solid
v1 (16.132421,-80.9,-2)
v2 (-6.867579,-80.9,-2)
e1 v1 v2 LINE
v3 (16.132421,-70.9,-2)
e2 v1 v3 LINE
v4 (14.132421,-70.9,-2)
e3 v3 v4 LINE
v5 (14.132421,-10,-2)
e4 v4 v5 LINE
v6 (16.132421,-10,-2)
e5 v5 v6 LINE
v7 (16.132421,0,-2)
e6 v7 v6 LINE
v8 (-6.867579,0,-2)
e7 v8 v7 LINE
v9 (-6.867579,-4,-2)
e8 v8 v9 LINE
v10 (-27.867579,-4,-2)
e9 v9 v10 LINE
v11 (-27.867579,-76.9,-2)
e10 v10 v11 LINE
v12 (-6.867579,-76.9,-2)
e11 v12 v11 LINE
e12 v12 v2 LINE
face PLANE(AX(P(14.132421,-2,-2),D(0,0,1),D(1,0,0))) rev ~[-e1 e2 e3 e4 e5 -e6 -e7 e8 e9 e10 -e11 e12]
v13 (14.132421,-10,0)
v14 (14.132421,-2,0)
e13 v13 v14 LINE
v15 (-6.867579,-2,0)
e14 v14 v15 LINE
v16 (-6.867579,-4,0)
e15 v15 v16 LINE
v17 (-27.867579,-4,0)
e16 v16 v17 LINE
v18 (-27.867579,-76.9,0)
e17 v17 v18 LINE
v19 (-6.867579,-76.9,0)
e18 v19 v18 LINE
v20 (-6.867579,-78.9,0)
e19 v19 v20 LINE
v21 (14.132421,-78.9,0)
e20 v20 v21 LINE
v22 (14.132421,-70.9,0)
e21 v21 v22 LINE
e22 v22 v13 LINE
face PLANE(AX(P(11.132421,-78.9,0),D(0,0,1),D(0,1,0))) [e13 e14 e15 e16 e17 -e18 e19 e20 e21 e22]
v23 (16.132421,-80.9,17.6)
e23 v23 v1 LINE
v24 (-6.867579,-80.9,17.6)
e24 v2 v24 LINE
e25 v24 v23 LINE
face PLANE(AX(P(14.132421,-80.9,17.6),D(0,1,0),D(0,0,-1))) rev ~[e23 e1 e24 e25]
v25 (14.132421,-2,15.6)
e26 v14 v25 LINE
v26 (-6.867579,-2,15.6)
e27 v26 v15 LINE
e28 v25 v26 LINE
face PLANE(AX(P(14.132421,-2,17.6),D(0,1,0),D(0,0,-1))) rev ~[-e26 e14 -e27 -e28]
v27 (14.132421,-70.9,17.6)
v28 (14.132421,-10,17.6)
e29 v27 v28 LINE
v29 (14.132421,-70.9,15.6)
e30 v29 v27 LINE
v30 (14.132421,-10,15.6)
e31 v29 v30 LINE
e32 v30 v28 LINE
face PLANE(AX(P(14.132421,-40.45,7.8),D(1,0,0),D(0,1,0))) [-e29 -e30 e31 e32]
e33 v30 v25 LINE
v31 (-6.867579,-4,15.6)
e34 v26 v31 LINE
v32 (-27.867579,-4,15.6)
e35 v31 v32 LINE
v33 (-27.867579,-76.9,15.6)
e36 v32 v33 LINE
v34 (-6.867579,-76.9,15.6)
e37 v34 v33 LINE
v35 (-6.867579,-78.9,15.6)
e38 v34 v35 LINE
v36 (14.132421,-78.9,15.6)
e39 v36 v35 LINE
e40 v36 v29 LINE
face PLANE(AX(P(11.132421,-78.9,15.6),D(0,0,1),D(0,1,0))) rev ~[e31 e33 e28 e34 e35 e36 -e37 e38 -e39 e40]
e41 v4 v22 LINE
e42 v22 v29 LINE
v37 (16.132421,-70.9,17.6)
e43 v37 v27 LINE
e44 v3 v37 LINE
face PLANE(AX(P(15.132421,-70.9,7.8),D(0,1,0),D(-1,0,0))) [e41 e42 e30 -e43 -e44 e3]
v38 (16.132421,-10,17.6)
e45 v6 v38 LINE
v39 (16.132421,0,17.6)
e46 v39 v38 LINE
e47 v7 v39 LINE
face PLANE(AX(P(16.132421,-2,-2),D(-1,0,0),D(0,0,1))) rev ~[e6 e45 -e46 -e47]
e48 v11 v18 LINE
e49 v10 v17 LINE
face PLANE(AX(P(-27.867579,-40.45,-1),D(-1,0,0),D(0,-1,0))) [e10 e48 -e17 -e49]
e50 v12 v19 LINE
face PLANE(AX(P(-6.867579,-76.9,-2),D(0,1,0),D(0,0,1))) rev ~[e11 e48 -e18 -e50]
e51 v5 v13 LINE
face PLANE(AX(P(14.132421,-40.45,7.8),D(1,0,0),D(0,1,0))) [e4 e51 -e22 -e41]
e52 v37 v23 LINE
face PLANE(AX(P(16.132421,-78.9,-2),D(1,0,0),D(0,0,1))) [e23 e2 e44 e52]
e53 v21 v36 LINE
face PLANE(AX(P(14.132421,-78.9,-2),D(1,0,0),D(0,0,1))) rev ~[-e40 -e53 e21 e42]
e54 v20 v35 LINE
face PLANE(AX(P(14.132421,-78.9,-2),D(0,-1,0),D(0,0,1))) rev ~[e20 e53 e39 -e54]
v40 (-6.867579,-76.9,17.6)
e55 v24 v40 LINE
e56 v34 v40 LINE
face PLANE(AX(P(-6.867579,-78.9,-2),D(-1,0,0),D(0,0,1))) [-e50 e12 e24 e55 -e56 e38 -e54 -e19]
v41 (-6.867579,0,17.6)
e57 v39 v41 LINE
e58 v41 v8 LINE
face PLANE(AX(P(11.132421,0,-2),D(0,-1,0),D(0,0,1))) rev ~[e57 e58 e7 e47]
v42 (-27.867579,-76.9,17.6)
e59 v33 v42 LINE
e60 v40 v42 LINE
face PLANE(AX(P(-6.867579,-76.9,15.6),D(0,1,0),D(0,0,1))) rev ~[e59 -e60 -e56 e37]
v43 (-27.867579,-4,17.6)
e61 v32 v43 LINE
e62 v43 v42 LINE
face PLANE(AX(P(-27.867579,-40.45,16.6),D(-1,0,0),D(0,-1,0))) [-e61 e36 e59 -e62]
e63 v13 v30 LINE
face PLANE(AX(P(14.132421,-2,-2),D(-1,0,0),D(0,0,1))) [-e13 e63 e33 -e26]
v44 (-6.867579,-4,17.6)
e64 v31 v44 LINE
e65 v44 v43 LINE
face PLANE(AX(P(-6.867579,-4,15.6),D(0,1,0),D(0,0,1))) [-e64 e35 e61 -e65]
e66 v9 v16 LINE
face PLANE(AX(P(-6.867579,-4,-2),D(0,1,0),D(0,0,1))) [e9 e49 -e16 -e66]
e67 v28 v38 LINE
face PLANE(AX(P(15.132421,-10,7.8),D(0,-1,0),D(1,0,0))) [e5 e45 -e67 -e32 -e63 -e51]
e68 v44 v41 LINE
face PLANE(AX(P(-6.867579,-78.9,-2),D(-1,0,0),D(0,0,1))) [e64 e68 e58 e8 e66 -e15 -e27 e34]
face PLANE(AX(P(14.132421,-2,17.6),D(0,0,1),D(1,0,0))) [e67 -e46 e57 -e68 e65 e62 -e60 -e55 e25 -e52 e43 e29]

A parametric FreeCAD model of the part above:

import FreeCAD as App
import Part
import Sketcher
from FreeCAD import Vector


def add_polygon(sketch, points):
    """Adds a closed chain of lines whose ends are joined by coincident constraints."""
    first, n = sketch.GeometryCount, len(points)
    for a, b in zip(points, points[1:] + points[:1]):
        sketch.addGeometry(Part.LineSegment(App.Vector(*a, 0), App.Vector(*b, 0)), False)
    for i in range(n):
        sketch.addConstraint(Sketcher.Constraint("Coincident", first + i, 2, first + (i + 1) % n, 1))

doc = App.newDocument("Part")
body = doc.addObject("PartDesign::Body", "Body")

sketch1 = doc.addObject("Sketcher::SketchObject", "Sketch")
body.addObject(sketch1)
sketch1.AttachmentSupport = (doc.XZ_Plane, [""])
sketch1.MapMode = "FlatFace"
add_polygon(sketch1, [(-7, -2), (11, -2), (11, 18), (-7, 18)])
sketch1.addConstraint([
    Sketcher.Constraint("Horizontal", 0),
    Sketcher.Constraint("Vertical", 1),
    Sketcher.Constraint("Horizontal", 2),
    Sketcher.Constraint("Vertical", 3),
    Sketcher.Constraint("DistanceX", 0, 1, 0, 2, 18.0),
    Sketcher.Constraint("DistanceY", 1, 1, 1, 2, 19.6),
    Sketcher.Constraint("DistanceY", 0, 2, -1, 1, 2.0),
    Sketcher.Constraint("DistanceX", -1, 1, 0, 2, 11.132421),
])
pad1 = doc.addObject("PartDesign::Pad", "Pad")
body.addObject(pad1)
pad1.Profile = sketch1
pad1.Length = 2

sketch2 = doc.addObject("Sketcher::SketchObject", "Sketch001")
body.addObject(sketch2)
sketch2.AttachmentSupport = (doc.XZ_Plane, [""])
sketch2.MapMode = "FlatFace"
sketch2.AttachmentOffset = App.Placement(Vector(0, 0, 2), App.Rotation())
add_polygon(sketch2, [(-6.9, 17.6), (-6.9, 15.6), (11.1, 15.6), (11.1, 17.6)])
add_polygon(sketch2, [(-6.9, 0), (-6.9, -2), (11.1, -2), (11.1, 0)])
sketch2.addConstraint([
    Sketcher.Constraint("Vertical", 0),
    Sketcher.Constraint("Horizontal", 1),
    Sketcher.Constraint("Vertical", 2),
    Sketcher.Constraint("Horizontal", 3),
    Sketcher.Constraint("Vertical", 4),
    Sketcher.Constraint("Horizontal", 5),
    Sketcher.Constraint("Vertical", 6),
    Sketcher.Constraint("Horizontal", 7),
    Sketcher.Constraint("PointOnObject", 6, 2, -1),
    Sketcher.Constraint("Vertical", 3, 2, 4, 2),
    Sketcher.Constraint("Vertical", 2, 2, 5, 2),
    Sketcher.Constraint("Equal", 2, 4),
    Sketcher.Constraint("DistanceX", 1, 1, 1, 2, 18.0),
    Sketcher.Constraint("DistanceY", 0, 2, 0, 1, 2.0),
    Sketcher.Constraint("DistanceY", -1, 1, 0, 2, 15.6),
    Sketcher.Constraint("DistanceX", 0, 2, -1, 1, 6.867579),
])
pad2 = doc.addObject("PartDesign::Pad", "Pad001")
body.addObject(pad2)
pad2.Profile = sketch2
pad2.Length = 76.9

sketch3 = doc.addObject("Sketcher::SketchObject", "Sketch002")
body.addObject(sketch3)
sketch3.AttachmentSupport = (doc.XZ_Plane, [""])
sketch3.MapMode = "FlatFace"
sketch3.AttachmentOffset = App.Placement(Vector(0, 0, 78.9), App.Rotation())
add_polygon(sketch3, [(-7, 18), (-7, -2), (11, -2), (11, 18)])
sketch3.addConstraint([
    Sketcher.Constraint("Vertical", 0),
    Sketcher.Constraint("Horizontal", 1),
    Sketcher.Constraint("Vertical", 2),
    Sketcher.Constraint("Horizontal", 3),
    Sketcher.Constraint("DistanceX", 1, 1, 1, 2, 18.0),
    Sketcher.Constraint("DistanceY", 0, 2, 0, 1, 19.6),
    Sketcher.Constraint("DistanceY", 0, 2, -1, 1, 2.0),
    Sketcher.Constraint("DistanceX", 0, 2, -1, 1, 6.867579),
])
pad3 = doc.addObject("PartDesign::Pad", "Pad002")
body.addObject(pad3)
pad3.Profile = sketch3
pad3.Length = 2

sketch4 = doc.addObject("Sketcher::SketchObject", "Sketch003")
body.addObject(sketch4)
sketch4.AttachmentSupport = (doc.YZ_Plane, [""])
sketch4.MapMode = "FlatFace"
sketch4.AttachmentOffset = App.Placement(Vector(0, 0, -6.867579), App.Rotation())
add_polygon(sketch4, [(-4, 17.6), (-4, 15.6), (-76.9, 15.6), (-76.9, 17.6)])
add_polygon(sketch4, [(-4, 0), (-4, -2), (-76.9, -2), (-76.9, 0)])
sketch4.addConstraint([
    Sketcher.Constraint("Vertical", 0),
    Sketcher.Constraint("Horizontal", 1),
    Sketcher.Constraint("Vertical", 2),
    Sketcher.Constraint("Horizontal", 3),
    Sketcher.Constraint("Vertical", 4),
    Sketcher.Constraint("Horizontal", 5),
    Sketcher.Constraint("Vertical", 6),
    Sketcher.Constraint("Horizontal", 7),
    Sketcher.Constraint("PointOnObject", 6, 2, -1),
    Sketcher.Constraint("Vertical", 3, 2, 4, 2),
    Sketcher.Constraint("Vertical", 2, 2, 5, 2),
    Sketcher.Constraint("Equal", 2, 4),
    Sketcher.Constraint("DistanceY", 0, 2, 0, 1, 2.0),
    Sketcher.Constraint("DistanceX", 1, 2, 1, 1, 72.9),
    Sketcher.Constraint("DistanceX", 0, 2, -1, 1, 4.0),
    Sketcher.Constraint("DistanceY", -1, 1, 0, 2, 15.6),
])
pad4 = doc.addObject("PartDesign::Pad", "Pad003")
body.addObject(pad4)
pad4.Profile = sketch4
pad4.Length = 21
pad4.Reversed = True

sketch5 = doc.addObject("Sketcher::SketchObject", "Sketch004")
body.addObject(sketch5)
sketch5.AttachmentSupport = (doc.YZ_Plane, [""])
sketch5.MapMode = "FlatFace"
sketch5.AttachmentOffset = App.Placement(Vector(0, 0, 11.132421), App.Rotation())
add_polygon(sketch5, [(-81, 18), (-81, -2), (0, -2), (0, 18)])
add_polygon(sketch5, [(-2, 0), (-79, 0), (-79, 16), (-2, 16)])
sketch5.addConstraint([
    Sketcher.Constraint("Vertical", 0),
    Sketcher.Constraint("Horizontal", 1),
    Sketcher.Constraint("Vertical", 2),
    Sketcher.Constraint("Horizontal", 3),
    Sketcher.Constraint("Horizontal", 4),
    Sketcher.Constraint("Vertical", 5),
    Sketcher.Constraint("Horizontal", 6),
    Sketcher.Constraint("Vertical", 7),
    Sketcher.Constraint("PointOnObject", 1, 2, -2),
    Sketcher.Constraint("PointOnObject", 4, 2, -1),
    Sketcher.Constraint("DistanceX", 1, 1, 1, 2, 80.9),
    Sketcher.Constraint("DistanceX", 4, 2, 4, 1, 76.9),
    Sketcher.Constraint("DistanceY", 0, 2, 0, 1, 19.6),
    Sketcher.Constraint("DistanceY", 5, 1, 5, 2, 15.6),
    Sketcher.Constraint("DistanceY", 0, 2, -1, 1, 2.0),
    Sketcher.Constraint("DistanceX", 6, 2, -1, 1, 2.0),
])
pad5 = doc.addObject("PartDesign::Pad", "Pad004")
body.addObject(pad5)
pad5.Profile = sketch5
pad5.Length = 3

sketch6 = doc.addObject("Sketcher::SketchObject", "Sketch005")
body.addObject(sketch6)
sketch6.AttachmentSupport = (doc.YZ_Plane, [""])
sketch6.MapMode = "FlatFace"
sketch6.AttachmentOffset = App.Placement(Vector(0, 0, 14.132421), App.Rotation())
add_polygon(sketch6, [(-78.9, -2), (-78.9, 17.6), (-80.9, 17.6), (-80.9, -2)])
add_polygon(sketch6, [(-2, -2), (0, -2), (0, 17.6), (-2, 17.6)])
sketch6.addConstraint([
    Sketcher.Constraint("Vertical", 0),
    Sketcher.Constraint("Horizontal", 1),
    Sketcher.Constraint("Vertical", 2),
    Sketcher.Constraint("Horizontal", 3),
    Sketcher.Constraint("Horizontal", 4),
    Sketcher.Constraint("Vertical", 5),
    Sketcher.Constraint("Horizontal", 6),
    Sketcher.Constraint("Vertical", 7),
    Sketcher.Constraint("PointOnObject", 4, 2, -2),
    Sketcher.Constraint("Horizontal", 3, 2, 4, 2),
    Sketcher.Constraint("Horizontal", 1, 2, 5, 2),
    Sketcher.Constraint("Equal", 3, 4),
    Sketcher.Constraint("DistanceX", 1, 2, 1, 1, 2.0),
    Sketcher.Constraint("DistanceY", 0, 1, 0, 2, 19.6),
    Sketcher.Constraint("DistanceY", 2, 2, -1, 1, 2.0),
    Sketcher.Constraint("DistanceX", 0, 2, -1, 1, 78.9),
])
pad6 = doc.addObject("PartDesign::Pad", "Pad005")
body.addObject(pad6)
pad6.Profile = sketch6
pad6.Length = 2

sketch7 = doc.addObject("Sketcher::SketchObject", "Sketch006")
body.addObject(sketch7)
sketch7.AttachmentSupport = (doc.XZ_Plane, [""])
sketch7.MapMode = "FlatFace"
sketch7.AttachmentOffset = App.Placement(Vector(0, 0, 78.9), App.Rotation())
add_polygon(sketch7, [(16.1, 17.6), (16.1, -2), (14.1, -2), (14.1, 17.6)])
sketch7.addConstraint([
    Sketcher.Constraint("Vertical", 0),
    Sketcher.Constraint("Horizontal", 1),
    Sketcher.Constraint("Vertical", 2),
    Sketcher.Constraint("Horizontal", 3),
    Sketcher.Constraint("DistanceX", 1, 2, 1, 1, 2.0),
    Sketcher.Constraint("DistanceY", 0, 2, 0, 1, 19.6),
    Sketcher.Constraint("DistanceY", 0, 2, -1, 1, 2.0),
    Sketcher.Constraint("DistanceX", -1, 1, 0, 2, 16.132421),
])
pad7 = doc.addObject("PartDesign::Pad", "Pad006")
body.addObject(pad7)
pad7.Profile = sketch7
pad7.Length = 8
pad7.Reversed = True

sketch8 = doc.addObject("Sketcher::SketchObject", "Sketch007")
body.addObject(sketch8)
sketch8.AttachmentSupport = (doc.XZ_Plane, [""])
sketch8.MapMode = "FlatFace"
sketch8.AttachmentOffset = App.Placement(Vector(0, 0, 2), App.Rotation())
add_polygon(sketch8, [(14.1, 17.6), (14.1, -2), (16.1, -2), (16.1, 17.6)])
sketch8.addConstraint([
    Sketcher.Constraint("Vertical", 0),
    Sketcher.Constraint("Horizontal", 1),
    Sketcher.Constraint("Vertical", 2),
    Sketcher.Constraint("Horizontal", 3),
    Sketcher.Constraint("DistanceX", 1, 1, 1, 2, 2.0),
    Sketcher.Constraint("DistanceY", 0, 2, 0, 1, 19.6),
    Sketcher.Constraint("DistanceY", 0, 2, -1, 1, 2.0),
    Sketcher.Constraint("DistanceX", -1, 1, 0, 2, 14.132421),
])
pad8 = doc.addObject("PartDesign::Pad", "Pad007")
body.addObject(pad8)
pad8.Profile = sketch8
pad8.Length = 8

doc.recompute()
